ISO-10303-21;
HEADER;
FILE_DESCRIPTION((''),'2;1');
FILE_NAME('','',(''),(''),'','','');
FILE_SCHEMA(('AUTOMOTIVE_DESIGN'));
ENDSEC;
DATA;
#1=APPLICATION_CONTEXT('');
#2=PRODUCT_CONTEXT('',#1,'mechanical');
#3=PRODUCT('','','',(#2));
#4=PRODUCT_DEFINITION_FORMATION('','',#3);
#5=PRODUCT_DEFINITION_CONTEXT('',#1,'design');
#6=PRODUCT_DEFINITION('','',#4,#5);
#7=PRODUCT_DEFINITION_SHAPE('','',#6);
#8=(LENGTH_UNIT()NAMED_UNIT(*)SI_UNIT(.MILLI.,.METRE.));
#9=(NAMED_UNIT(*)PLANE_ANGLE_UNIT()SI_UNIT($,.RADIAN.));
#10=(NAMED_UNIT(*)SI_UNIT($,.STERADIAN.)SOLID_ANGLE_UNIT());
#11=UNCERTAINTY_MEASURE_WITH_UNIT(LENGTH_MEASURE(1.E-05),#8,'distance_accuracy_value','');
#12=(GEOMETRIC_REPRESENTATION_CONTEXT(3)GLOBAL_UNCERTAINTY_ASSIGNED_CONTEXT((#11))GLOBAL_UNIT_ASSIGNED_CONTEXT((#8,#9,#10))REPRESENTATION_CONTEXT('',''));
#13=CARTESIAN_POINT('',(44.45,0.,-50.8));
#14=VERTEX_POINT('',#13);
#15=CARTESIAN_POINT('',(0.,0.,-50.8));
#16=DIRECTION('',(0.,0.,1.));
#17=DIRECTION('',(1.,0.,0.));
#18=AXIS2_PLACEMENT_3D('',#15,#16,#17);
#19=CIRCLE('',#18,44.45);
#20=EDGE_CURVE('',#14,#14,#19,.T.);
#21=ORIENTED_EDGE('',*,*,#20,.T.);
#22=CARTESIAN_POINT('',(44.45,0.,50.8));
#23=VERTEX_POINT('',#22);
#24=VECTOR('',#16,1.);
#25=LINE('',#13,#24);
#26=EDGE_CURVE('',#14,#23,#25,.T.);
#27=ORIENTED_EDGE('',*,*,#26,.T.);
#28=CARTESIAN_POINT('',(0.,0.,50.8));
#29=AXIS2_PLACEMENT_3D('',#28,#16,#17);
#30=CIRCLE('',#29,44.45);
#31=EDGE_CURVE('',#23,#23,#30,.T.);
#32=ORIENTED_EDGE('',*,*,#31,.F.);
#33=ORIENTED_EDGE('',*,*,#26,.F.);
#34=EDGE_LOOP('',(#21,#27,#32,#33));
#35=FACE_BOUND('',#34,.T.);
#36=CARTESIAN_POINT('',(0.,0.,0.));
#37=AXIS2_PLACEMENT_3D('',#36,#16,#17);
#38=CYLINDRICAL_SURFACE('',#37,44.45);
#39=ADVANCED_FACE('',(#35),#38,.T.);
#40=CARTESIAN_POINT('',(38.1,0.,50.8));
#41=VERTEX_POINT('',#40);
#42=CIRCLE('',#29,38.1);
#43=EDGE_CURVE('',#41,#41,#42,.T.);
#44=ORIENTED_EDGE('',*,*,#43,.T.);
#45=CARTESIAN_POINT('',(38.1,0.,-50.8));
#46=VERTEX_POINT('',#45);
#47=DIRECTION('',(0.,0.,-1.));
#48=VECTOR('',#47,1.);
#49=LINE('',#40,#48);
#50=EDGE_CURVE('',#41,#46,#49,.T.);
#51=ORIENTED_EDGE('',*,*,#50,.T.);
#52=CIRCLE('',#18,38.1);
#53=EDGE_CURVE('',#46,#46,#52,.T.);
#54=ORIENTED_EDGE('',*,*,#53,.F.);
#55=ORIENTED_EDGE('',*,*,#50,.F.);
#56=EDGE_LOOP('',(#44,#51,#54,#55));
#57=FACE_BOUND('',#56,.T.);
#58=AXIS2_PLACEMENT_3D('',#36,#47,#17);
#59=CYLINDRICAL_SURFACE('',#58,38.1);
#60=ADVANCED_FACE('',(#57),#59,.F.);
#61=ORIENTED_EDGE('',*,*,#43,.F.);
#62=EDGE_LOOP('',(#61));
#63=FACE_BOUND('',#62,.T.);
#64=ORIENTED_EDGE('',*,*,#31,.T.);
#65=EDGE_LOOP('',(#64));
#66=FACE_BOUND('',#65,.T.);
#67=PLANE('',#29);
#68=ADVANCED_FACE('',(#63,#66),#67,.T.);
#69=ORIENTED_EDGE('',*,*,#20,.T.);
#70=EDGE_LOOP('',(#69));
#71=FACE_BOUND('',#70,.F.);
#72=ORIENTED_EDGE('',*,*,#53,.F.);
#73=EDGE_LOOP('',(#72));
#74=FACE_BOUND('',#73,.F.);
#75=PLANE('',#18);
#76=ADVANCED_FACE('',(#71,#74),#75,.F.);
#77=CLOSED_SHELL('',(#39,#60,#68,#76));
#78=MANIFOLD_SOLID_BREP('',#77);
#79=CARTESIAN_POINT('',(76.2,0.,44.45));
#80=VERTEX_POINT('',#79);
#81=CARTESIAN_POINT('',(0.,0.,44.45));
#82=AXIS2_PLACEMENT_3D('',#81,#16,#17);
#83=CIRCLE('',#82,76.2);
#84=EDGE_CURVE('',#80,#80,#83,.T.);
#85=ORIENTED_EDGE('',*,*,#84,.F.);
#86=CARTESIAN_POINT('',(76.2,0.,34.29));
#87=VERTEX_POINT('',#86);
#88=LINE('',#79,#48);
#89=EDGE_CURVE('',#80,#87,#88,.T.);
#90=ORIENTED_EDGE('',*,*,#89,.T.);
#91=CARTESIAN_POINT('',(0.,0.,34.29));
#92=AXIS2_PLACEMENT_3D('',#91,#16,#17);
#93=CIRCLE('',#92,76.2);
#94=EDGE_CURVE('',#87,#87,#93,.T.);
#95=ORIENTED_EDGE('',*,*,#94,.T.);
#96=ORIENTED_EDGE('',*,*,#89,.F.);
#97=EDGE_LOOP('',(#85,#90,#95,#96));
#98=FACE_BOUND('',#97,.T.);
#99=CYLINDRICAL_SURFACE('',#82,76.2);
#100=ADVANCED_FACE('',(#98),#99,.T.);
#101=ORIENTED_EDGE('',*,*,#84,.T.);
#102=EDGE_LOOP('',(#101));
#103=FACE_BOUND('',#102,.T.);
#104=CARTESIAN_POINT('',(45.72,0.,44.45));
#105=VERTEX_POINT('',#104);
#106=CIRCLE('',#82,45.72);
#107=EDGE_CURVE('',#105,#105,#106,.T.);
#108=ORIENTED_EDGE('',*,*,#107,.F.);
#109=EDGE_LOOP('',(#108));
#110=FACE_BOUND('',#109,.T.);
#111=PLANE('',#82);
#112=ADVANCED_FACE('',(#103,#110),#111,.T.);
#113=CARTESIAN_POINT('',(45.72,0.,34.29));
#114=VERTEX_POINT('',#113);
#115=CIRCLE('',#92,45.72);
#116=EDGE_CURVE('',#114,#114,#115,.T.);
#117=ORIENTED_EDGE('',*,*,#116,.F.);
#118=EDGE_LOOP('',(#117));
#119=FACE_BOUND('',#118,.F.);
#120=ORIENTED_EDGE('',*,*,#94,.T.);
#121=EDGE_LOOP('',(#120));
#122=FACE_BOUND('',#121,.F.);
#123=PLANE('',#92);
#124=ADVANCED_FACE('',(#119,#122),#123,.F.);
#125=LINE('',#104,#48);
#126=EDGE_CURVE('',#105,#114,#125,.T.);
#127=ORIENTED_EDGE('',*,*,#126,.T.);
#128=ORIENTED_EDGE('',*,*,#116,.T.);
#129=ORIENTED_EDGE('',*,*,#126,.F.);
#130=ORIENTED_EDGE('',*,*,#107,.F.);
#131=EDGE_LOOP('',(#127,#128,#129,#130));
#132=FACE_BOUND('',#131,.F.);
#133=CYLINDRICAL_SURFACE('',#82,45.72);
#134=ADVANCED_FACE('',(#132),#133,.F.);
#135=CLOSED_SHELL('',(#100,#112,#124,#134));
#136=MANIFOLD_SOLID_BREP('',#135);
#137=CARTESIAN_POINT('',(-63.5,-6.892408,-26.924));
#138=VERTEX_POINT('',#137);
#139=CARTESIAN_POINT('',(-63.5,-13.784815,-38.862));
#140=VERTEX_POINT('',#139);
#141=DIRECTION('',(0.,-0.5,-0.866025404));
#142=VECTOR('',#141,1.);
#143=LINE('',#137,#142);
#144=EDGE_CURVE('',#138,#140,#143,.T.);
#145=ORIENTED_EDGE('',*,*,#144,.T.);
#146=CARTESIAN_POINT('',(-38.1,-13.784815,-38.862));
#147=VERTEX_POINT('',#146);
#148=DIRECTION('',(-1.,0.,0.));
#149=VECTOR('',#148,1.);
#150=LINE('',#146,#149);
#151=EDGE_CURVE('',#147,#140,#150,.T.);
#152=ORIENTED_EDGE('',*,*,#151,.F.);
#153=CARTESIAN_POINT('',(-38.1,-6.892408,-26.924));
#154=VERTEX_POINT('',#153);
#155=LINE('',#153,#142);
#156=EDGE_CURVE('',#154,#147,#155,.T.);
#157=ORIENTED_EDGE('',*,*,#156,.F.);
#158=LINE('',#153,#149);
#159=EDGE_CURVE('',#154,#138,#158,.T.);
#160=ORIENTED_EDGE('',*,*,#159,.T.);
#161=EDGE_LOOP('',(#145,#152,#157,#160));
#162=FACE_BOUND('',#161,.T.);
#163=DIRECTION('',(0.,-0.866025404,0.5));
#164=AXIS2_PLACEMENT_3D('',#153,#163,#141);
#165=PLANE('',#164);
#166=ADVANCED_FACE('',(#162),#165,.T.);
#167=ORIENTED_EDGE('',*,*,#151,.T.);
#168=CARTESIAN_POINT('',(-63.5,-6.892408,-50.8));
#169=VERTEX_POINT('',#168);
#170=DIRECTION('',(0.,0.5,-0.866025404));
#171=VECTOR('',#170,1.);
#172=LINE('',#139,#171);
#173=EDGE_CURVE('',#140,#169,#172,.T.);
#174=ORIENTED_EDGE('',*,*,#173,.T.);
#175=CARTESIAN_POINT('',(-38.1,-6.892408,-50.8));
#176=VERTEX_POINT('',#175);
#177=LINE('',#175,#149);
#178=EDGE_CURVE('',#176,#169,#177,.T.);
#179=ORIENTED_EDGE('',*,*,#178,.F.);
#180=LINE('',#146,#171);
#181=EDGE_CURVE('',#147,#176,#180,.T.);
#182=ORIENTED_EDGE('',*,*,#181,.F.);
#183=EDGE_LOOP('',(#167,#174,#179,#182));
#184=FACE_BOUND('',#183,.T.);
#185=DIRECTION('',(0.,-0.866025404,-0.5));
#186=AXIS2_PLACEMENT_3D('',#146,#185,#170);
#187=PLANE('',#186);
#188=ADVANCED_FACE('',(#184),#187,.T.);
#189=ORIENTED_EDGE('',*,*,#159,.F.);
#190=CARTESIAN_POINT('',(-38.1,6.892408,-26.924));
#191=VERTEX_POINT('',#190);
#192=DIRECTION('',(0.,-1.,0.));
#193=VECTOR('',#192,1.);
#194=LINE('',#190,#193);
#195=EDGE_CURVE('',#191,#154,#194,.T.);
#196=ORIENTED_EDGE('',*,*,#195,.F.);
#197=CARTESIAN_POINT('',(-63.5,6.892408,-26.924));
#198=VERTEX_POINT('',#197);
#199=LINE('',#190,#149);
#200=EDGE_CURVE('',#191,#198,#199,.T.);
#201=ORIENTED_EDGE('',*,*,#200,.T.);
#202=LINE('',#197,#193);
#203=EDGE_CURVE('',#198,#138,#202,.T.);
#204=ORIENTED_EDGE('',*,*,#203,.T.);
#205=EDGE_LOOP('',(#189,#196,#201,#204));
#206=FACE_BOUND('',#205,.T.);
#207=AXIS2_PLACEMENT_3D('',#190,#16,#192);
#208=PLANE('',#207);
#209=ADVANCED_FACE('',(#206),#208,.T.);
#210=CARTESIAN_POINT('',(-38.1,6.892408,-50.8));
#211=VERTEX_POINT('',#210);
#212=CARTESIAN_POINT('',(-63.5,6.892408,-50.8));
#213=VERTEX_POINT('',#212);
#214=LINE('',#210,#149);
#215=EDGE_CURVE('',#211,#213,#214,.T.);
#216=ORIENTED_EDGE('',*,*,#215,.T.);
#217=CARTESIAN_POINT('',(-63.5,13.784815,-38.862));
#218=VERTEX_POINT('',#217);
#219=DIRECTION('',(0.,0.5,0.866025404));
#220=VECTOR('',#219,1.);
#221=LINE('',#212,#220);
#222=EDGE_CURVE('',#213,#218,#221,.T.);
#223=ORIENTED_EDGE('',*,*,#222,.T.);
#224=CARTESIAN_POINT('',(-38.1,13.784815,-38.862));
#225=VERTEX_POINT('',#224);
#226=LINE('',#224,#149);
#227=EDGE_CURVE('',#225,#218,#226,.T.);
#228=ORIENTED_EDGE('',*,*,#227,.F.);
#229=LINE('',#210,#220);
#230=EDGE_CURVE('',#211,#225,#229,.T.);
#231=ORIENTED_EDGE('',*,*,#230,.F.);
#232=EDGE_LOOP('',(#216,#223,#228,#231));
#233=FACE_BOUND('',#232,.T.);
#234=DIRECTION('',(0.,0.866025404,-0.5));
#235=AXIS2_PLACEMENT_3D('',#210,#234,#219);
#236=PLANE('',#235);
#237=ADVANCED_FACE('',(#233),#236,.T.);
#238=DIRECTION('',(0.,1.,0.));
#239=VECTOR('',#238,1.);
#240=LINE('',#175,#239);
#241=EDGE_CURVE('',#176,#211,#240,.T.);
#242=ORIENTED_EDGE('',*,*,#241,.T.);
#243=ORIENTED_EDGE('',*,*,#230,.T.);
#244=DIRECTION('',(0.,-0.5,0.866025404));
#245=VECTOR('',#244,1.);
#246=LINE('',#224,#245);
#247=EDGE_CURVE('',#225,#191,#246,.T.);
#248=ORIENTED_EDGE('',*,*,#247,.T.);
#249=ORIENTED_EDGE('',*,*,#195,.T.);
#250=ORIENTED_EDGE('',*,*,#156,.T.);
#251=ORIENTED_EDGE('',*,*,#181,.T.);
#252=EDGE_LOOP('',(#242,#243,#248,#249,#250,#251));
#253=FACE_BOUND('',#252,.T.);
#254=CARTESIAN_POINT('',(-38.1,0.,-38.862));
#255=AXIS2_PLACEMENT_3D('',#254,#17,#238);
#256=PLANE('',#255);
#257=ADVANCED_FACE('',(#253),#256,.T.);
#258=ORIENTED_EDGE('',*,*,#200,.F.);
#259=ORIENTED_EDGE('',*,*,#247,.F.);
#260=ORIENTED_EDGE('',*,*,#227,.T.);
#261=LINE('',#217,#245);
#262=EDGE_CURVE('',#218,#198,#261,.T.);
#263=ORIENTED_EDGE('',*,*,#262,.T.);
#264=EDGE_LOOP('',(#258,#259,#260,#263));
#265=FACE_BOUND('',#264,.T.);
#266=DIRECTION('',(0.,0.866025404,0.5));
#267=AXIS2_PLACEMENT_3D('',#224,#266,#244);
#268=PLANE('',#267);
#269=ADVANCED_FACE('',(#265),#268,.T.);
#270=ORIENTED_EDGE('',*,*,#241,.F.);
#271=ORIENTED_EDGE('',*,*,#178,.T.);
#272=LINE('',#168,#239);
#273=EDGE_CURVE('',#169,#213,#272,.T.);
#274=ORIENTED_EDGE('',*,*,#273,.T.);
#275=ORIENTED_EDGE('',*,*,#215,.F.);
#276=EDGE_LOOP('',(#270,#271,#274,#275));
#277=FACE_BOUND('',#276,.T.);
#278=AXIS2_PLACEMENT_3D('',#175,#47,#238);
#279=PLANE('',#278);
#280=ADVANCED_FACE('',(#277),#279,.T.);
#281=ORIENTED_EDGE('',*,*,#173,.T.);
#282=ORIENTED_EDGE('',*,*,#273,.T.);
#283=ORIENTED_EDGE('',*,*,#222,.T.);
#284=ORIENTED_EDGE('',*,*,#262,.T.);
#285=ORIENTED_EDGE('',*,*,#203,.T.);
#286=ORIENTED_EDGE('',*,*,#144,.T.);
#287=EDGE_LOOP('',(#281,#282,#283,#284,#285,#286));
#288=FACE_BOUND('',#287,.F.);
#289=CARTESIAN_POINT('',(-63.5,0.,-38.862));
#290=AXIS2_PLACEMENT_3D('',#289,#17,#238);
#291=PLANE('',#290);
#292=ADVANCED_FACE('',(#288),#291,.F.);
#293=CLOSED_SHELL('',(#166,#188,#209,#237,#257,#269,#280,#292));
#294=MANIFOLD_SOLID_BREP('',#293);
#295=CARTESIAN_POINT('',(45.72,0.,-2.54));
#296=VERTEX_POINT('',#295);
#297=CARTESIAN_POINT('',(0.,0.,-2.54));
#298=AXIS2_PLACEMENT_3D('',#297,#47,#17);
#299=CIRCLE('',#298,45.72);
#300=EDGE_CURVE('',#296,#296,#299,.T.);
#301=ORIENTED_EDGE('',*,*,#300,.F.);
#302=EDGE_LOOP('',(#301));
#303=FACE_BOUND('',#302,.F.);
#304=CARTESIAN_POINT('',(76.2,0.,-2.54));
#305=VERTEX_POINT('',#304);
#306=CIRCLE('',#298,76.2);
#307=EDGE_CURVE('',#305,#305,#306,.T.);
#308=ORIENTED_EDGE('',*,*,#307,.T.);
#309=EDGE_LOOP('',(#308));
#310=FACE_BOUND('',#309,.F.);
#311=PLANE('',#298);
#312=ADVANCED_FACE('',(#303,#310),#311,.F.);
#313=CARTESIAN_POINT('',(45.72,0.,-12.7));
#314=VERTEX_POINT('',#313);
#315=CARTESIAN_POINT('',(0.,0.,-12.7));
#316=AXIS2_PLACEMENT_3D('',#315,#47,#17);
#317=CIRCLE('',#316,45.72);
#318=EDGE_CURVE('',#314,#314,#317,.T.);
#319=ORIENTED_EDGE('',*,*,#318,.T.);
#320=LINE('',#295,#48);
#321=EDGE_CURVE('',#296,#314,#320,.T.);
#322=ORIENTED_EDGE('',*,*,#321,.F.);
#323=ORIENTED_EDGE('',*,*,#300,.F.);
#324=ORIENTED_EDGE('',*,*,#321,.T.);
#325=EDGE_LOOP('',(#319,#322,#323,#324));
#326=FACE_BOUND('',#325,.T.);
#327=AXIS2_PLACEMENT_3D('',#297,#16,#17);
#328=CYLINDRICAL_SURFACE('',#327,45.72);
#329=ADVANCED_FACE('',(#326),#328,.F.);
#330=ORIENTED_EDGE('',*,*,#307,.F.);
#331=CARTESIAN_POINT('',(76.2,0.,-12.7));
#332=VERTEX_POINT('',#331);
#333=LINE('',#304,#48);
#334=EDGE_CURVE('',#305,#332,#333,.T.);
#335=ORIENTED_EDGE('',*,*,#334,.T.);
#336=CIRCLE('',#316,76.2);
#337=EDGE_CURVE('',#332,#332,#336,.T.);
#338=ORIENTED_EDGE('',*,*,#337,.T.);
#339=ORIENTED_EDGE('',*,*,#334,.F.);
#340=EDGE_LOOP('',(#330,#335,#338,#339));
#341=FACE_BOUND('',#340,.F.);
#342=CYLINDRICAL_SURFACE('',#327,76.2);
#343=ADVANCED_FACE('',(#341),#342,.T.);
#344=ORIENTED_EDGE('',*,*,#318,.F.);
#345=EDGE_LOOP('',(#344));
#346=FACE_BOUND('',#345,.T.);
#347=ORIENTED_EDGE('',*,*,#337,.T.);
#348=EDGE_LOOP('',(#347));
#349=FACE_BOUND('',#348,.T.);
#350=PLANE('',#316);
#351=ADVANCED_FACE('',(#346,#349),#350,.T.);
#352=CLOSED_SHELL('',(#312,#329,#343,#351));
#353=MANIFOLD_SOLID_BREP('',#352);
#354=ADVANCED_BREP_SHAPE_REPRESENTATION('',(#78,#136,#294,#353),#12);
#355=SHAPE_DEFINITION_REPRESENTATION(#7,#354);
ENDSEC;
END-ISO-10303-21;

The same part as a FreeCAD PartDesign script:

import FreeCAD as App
import Part
import Sketcher

V = App.Vector
Q = App.Units.Quantity


def add_polygon(sketch, points):
    """Adds a closed chain of lines whose ends are joined by coincident constraints."""
    first, n = sketch.GeometryCount, len(points)
    for a, b in zip(points, points[1:] + points[:1]):
        sketch.addGeometry(Part.LineSegment(App.Vector(*a, 0), App.Vector(*b, 0)), False)
    for i in range(n):
        sketch.addConstraint(Sketcher.Constraint("Coincident", first + i, 2, first + (i + 1) % n, 1))

doc = App.newDocument("Part")
body = doc.addObject("PartDesign::Body", "Body")

# Sketch on XY plane
sketch1 = doc.addObject("Sketcher::SketchObject", "Sketch")
body.addObject(sketch1)
sketch1.AttachmentSupport = (doc.XY_Plane, [""])
sketch1.MapMode = "FlatFace"
sketch1.addGeometry(Part.Circle(V(0, 0, 0), V(0, 0, 1), 44), False)
sketch1.addGeometry(Part.Circle(V(0, 0, 0), V(0, 0, 1), 38), False)
sketch1.addConstraint(Sketcher.Constraint("Coincident", 0, 3, -1, 1))
sketch1.addConstraint(Sketcher.Constraint("Coincident", 1, 3, -1, 1))
sketch1.addConstraint(Sketcher.Constraint("Diameter", 1, Q("3 in")))
sketch1.addConstraint(Sketcher.Constraint("Diameter", 0, Q("3.5 in")))
pad1 = doc.addObject("PartDesign::Pad", "Pad")
body.addObject(pad1)
pad1.Profile = sketch1
pad1.Length = Q("4 in")
pad1.Midplane = True
body2 = doc.addObject("PartDesign::Body", "Body001")

# Sketch on XY plane
sketch2 = doc.addObject("Sketcher::SketchObject", "Sketch001")
body2.addObject(sketch2)
sketch2.AttachmentSupport = (doc.getObject("XY_Plane001"), [""])
sketch2.MapMode = "FlatFace"
sketch2.AttachmentOffset = App.Placement(V(0, 0, 1.75 * 25.4), App.Rotation())
sketch2.addGeometry(Part.Circle(V(0, 0, 0), V(0, 0, 1), 76), False)
sketch2.addGeometry(Part.Circle(V(0, 0, 0), V(0, 0, 1), 46), False)
sketch2.addConstraint(Sketcher.Constraint("Coincident", 0, 3, -1, 1))
sketch2.addConstraint(Sketcher.Constraint("Coincident", 1, 3, -1, 1))
sketch2.addConstraint(Sketcher.Constraint("Diameter", 0, Q("6 in")))
sketch2.addConstraint(Sketcher.Constraint("Diameter", 1, Q("3.6 in")))
pad2 = doc.addObject("PartDesign::Pad", "Pad001")
body2.addObject(pad2)
pad2.Profile = sketch2
pad2.Length = Q("0.4 in")
pad2.Reversed = True
body3 = doc.addObject("PartDesign::Body", "Body002")

# Sketch on XY plane
sketch3 = doc.addObject("Sketcher::SketchObject", "Sketch002")
body3.addObject(sketch3)
sketch3.AttachmentSupport = (doc.getObject("XY_Plane002"), [""])
sketch3.MapMode = "FlatFace"
sketch3.AttachmentOffset = App.Placement(V(0, 0, -0.1 * 25.4), App.Rotation())
sketch3.addGeometry(Part.Circle(V(0, 0, 0), V(0, 0, 1), 76), False)
sketch3.addGeometry(Part.Circle(V(0, 0, 0), V(0, 0, 1), 46), False)
sketch3.addConstraint(Sketcher.Constraint("Coincident", 0, 3, -1, 1))
sketch3.addConstraint(Sketcher.Constraint("Coincident", 1, 3, -1, 1))
sketch3.addConstraint(Sketcher.Constraint("Diameter", 0, Q("6 in")))
sketch3.addConstraint(Sketcher.Constraint("Diameter", 1, Q("3.6 in")))
pad3 = doc.addObject("PartDesign::Pad", "Pad002")
body3.addObject(pad3)
pad3.Profile = sketch3
pad3.Length = Q("0.4 in")
pad3.Reversed = True
body4 = doc.addObject("PartDesign::Body", "Body003")

# Sketch on YZ plane
sketch4 = doc.addObject("Sketcher::SketchObject", "Sketch003")
body4.addObject(sketch4)
sketch4.AttachmentSupport = (doc.getObject("YZ_Plane003"), [""])
sketch4.MapMode = "FlatFace"
sketch4.AttachmentOffset = App.Placement(V(0, 0, -1.5 * 25.4), App.Rotation())
add_polygon(sketch4, [(-7, -51), (7, -51), (14, -39), (7, -27), (-7, -27), (-14, -39)])  # lines 0-5
sketch4.addConstraint(Sketcher.Constraint("Horizontal", 0))
sketch4.addConstraint(Sketcher.Constraint("Horizontal", 3))
sketch4.addConstraint(Sketcher.Constraint("Symmetric", 1, 2, 4, 2, -2))
sketch4.addConstraint(Sketcher.Constraint("Parallel", 1, 4))
sketch4.addConstraint(Sketcher.Constraint("Parallel", 2, 5))
sketch4.addConstraint(Sketcher.Constraint("Vertical", 0, 2, 2, 2))
sketch4.addConstraint(Sketcher.Constraint("Vertical", 3, 2, 5, 2))
sketch4.addConstraint(Sketcher.Constraint("DistanceY", 0, 2, -1, 1, Q("2 in")))
sketch4.addConstraint(Sketcher.Constraint("Angle", 1, Q("60 deg")))
sketch4.addConstraint(Sketcher.Constraint("DistanceY", 1, 2, -1, 1, Q("1.53 in")))
sketch4.addConstraint(Sketcher.Constraint("DistanceX", 0, 1, 0, 2, Q("13.784815 mm")))
pad4 = doc.addObject("PartDesign::Pad", "Pad003")
body4.addObject(pad4)
pad4.Profile = sketch4
pad4.Length = Q("1 in")
pad4.Reversed = True

doc.recompute()
